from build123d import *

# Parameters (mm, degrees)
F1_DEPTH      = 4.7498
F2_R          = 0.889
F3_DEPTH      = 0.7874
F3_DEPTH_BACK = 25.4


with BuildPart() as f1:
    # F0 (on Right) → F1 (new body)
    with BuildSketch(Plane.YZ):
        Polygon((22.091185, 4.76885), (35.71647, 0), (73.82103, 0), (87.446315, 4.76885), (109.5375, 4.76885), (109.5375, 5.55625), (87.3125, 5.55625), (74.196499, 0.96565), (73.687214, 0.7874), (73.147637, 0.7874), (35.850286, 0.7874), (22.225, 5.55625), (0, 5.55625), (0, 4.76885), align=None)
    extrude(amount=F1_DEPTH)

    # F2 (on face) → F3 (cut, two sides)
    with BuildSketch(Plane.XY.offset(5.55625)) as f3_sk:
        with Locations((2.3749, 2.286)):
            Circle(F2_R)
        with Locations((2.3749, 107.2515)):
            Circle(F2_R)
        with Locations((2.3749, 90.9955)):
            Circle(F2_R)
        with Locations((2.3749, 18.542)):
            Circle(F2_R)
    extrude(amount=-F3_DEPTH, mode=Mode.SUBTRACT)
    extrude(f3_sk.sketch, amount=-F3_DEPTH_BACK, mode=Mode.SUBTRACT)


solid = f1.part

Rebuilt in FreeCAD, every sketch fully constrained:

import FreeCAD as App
import Part
import Sketcher
Q = App.Units.Quantity


def add_polygon(sketch, points):
    """Adds a closed chain of lines whose ends are joined by coincident constraints."""
    first, n = sketch.GeometryCount, len(points)
    for a, b in zip(points, points[1:] + points[:1]):
        sketch.addGeometry(Part.LineSegment(App.Vector(*a, 0), App.Vector(*b, 0)), False)
    for i in range(n):
        sketch.addConstraint(Sketcher.Constraint("Coincident", first + i, 2, first + (i + 1) % n, 1))

doc = App.newDocument("Part")
params = doc.addObject("Spreadsheet::Sheet", "Params")
for row, (alias, value) in enumerate([
    ("sketch1_width", "0.875 in"),
    ("sketch1_height", "0.031 in"),
    ("pad1_length", "0.187 in"),
    ("sketch2_diameter", "0.07 in"),
    ("pocket1_length", "0.031 in"),
    ("pocket2_length", "1 in"),
], start=1):
    params.set(f"A{row}", alias)
    params.set(f"B{row}", "=" + value)
    params.setAlias(f"B{row}", alias)

body = doc.addObject("PartDesign::Body", "Body")

# Sketch on YZ plane
sketch1 = body.newObject("Sketcher::SketchObject", "Sketch")
sketch1.AttachmentSupport = (doc.getObject("YZ_Plane"), [""])
sketch1.MapMode = "FlatFace"
add_polygon(sketch1, [(22.1, 4.8), (35.7, 0), (73.8, 0), (87.4, 4.8), (109.5, 4.8), (109.5, 5.6), (87.3, 5.6), (74.2, 1), (73.7, 0.8), (35.9, 0.8), (22.2, 5.6), (0, 5.6), (0, 4.8)])  # lines 0-12
sketch1.addConstraint([
    Sketcher.Constraint("Horizontal", 1),
    Sketcher.Constraint("Horizontal", 3),
    Sketcher.Constraint("Vertical", 4),
    Sketcher.Constraint("Horizontal", 5),
    Sketcher.Constraint("Horizontal", 8),
    Sketcher.Constraint("Horizontal", 10),
    Sketcher.Constraint("Vertical", 11),
    Sketcher.Constraint("Horizontal", 12),
    Sketcher.Constraint("PointOnObject", 0, 2, -1),
    Sketcher.Constraint("PointOnObject", 10, 2, -2),
    Sketcher.Constraint("Parallel", 2, 6),
    Sketcher.Constraint("Parallel", 6, 7),
    Sketcher.Constraint("Parallel", 0, 9),
    Sketcher.Constraint("Horizontal", 5, 2, 9, 2),
    Sketcher.Constraint("Horizontal", 3, 2, 11, 2),
    Sketcher.Constraint("Equal", 5, 10),
    Sketcher.Constraint("Equal", 3, 12),
    Sketcher.Constraint("Equal", 0, 2),
    Sketcher.Constraint("Equal", 2, 9),
    Sketcher.Constraint("DistanceX", 5, 2, 5, 1, Q("0.875 in")),
    Sketcher.Constraint("DistanceY", 4, 1, 4, 2, Q("0.031 in")),
    Sketcher.Constraint("DistanceX", -1, 1, 3, 2, Q("4.3125 in")),
    Sketcher.Constraint("DistanceY", -1, 1, 4, 2, Q("0.21875 in")),
    Sketcher.Constraint("DistanceX", 1, 1, 1, 2, 38.10456),
    Sketcher.Constraint("DistanceX", -1, 1, 6, 2, 74.196499),
    Sketcher.Constraint("DistanceY", 6, 2, 2, 2, 3.8032),
])
sketch1.setExpression("Constraints[32]", "Params.sketch1_width")
sketch1.setExpression("Constraints[33]", "Params.sketch1_height")
pad1 = body.newObject("PartDesign::Pad", "Pad")
pad1.Profile = sketch1
pad1.setExpression("Length", "Params.pad1_length")

# Sketch on XY plane
sketch2 = body.newObject("Sketcher::SketchObject", "Sketch001")
sketch2.AttachmentSupport = (doc.getObject("XY_Plane"), [""])
sketch2.MapMode = "FlatFace"
sketch2.AttachmentOffset = App.Placement(App.Vector(0, 0, 0.21875 * 25.4), App.Rotation())
sketch2.addGeometry([
    Part.Circle(App.Vector(2.4, 2.3, 0), App.Vector(0, 0, 1), 0.9),
    Part.Circle(App.Vector(2.4, 107.3, 0), App.Vector(0, 0, 1), 0.9),
    Part.Circle(App.Vector(2.4, 91, 0), App.Vector(0, 0, 1), 0.9),
    Part.Circle(App.Vector(2.4, 18.5, 0), App.Vector(0, 0, 1), 0.9),
], False)
sketch2.addConstraint([
    Sketcher.Constraint("Equal", 0, 1),
    Sketcher.Constraint("Equal", 1, 2),
    Sketcher.Constraint("Equal", 2, 3),
    Sketcher.Constraint("Vertical", 0, 3, 1, 3),
    Sketcher.Constraint("Vertical", 1, 3, 2, 3),
    Sketcher.Constraint("Vertical", 2, 3, 3, 3),
    Sketcher.Constraint("Diameter", 0, Q("0.07 in")),
    Sketcher.Constraint("DistanceY", -1, 1, 0, 3, Q("0.09 in")),
    Sketcher.Constraint("DistanceY", -1, 1, 3, 3, Q("0.73 in")),
    Sketcher.Constraint("DistanceY", 2, 3, 1, 3, Q("0.64 in")),
    Sketcher.Constraint("DistanceX", -1, 1, 0, 3, Q("0.0935 in")),
    Sketcher.Constraint("DistanceY", -1, 1, 1, 3, Q("4.2225 in")),
])
sketch2.setExpression("Constraints[6]", "Params.sketch2_diameter")
pocket1 = body.newObject("PartDesign::Pocket", "Pocket")
pocket1.Profile = sketch2
pocket1.setExpression("Length", "Params.pocket1_length")
pocket2 = body.newObject("PartDesign::Pocket", "Pocket001")
pocket2.Profile = sketch2
pocket2.setExpression("Length", "Params.pocket2_length")

doc.recompute()
